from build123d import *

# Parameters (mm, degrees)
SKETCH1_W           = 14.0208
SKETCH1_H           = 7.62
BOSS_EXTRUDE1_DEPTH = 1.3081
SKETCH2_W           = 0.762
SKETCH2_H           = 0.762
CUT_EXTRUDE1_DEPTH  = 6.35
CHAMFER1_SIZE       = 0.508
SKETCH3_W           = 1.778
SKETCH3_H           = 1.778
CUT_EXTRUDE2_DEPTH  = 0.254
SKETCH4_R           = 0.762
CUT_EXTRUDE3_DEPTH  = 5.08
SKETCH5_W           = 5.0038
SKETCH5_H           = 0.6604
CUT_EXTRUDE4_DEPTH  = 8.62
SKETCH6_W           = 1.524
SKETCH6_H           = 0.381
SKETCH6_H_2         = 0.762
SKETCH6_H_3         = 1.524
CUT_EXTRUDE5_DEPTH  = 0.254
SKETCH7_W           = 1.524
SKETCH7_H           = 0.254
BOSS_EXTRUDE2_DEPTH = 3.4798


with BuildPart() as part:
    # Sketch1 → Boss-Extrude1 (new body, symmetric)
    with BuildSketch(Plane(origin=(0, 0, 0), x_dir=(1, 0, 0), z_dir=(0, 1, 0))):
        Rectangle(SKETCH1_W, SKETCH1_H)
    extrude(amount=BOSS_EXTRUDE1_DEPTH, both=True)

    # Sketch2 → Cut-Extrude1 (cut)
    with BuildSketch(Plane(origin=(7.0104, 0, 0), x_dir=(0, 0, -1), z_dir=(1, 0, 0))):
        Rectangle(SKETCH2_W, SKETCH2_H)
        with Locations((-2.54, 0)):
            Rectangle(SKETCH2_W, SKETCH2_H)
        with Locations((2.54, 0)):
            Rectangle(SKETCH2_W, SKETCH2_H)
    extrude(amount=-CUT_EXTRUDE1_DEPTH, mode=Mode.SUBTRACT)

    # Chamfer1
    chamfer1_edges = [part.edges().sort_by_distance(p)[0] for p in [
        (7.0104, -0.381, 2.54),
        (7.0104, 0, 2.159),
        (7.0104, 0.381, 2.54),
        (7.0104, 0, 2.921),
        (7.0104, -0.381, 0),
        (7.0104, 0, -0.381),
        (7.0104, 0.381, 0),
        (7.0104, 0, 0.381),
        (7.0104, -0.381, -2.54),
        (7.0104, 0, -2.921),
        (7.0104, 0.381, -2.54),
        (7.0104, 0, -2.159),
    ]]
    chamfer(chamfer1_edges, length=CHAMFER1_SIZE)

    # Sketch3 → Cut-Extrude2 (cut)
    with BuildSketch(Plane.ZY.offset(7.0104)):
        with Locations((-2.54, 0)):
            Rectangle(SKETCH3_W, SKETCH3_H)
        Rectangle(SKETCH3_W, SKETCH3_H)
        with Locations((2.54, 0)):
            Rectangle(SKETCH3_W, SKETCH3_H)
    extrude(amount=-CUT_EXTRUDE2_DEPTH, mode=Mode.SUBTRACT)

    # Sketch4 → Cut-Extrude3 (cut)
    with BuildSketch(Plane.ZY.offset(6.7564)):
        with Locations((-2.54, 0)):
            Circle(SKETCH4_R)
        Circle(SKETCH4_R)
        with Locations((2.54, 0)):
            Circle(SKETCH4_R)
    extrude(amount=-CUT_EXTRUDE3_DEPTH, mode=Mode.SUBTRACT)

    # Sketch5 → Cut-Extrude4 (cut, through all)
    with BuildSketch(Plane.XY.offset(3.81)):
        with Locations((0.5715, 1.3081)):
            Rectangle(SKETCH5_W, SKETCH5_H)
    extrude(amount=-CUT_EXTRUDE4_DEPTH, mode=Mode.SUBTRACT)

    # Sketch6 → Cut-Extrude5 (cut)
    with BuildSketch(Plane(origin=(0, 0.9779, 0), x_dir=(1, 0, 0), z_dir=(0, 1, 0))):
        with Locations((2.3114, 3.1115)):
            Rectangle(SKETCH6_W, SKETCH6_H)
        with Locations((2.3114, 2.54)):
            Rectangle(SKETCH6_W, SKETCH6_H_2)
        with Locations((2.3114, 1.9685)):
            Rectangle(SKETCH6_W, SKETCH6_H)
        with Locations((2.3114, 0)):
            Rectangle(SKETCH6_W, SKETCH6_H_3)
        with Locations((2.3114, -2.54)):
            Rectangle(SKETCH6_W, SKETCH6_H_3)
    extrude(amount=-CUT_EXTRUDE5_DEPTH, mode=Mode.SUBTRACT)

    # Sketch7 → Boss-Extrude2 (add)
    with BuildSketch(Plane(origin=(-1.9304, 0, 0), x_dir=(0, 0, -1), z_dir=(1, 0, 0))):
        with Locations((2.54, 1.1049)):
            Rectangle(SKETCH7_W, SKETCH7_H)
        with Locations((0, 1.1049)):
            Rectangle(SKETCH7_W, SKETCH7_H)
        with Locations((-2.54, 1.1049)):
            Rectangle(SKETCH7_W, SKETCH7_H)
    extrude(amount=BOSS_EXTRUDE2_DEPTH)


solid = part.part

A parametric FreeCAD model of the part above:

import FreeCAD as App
import Part
import Sketcher
Q = App.Units.Quantity


def edges_at(feature, points):
    """Names of the edges that pass closest to the given points."""
    edges = feature.Shape.Edges
    near = lambda p: min(range(len(edges)), key=lambda i: edges[i].distToShape(Part.Vertex(*p))[0])
    return sorted({f"Edge{near(p) + 1}" for p in points})

doc = App.newDocument("Part")
body = doc.addObject("PartDesign::Body", "Body")

# Sketch on XZ plane
sketch1 = doc.addObject("Sketcher::SketchObject", "Sketch")
body.addObject(sketch1)
sketch1.AttachmentSupport = (doc.XZ_Plane, [""])
sketch1.MapMode = "FlatFace"
sketch1.addGeometry([
    Part.LineSegment(App.Vector(-7, -4, 0), App.Vector(-7, 4, 0)),
    Part.LineSegment(App.Vector(-7, 4, 0), App.Vector(7, 4, 0)),
    Part.LineSegment(App.Vector(7, 4, 0), App.Vector(7, -4, 0)),
    Part.LineSegment(App.Vector(7, -4, 0), App.Vector(-7, -4, 0)),
], False)
sketch1.addConstraint([
    Sketcher.Constraint("Coincident", 0, 2, 1, 1),
    Sketcher.Constraint("Coincident", 1, 2, 2, 1),
    Sketcher.Constraint("Coincident", 2, 2, 3, 1),
    Sketcher.Constraint("Coincident", 3, 2, 0, 1),
    Sketcher.Constraint("Vertical", 0),
    Sketcher.Constraint("Horizontal", 1),
    Sketcher.Constraint("Vertical", 2),
    Sketcher.Constraint("Horizontal", 3),
    Sketcher.Constraint("Symmetric", 0, 2, 2, 2, -1, 1),
    Sketcher.Constraint("DistanceY", 0, 1, 0, 2, Q("0.3 in")),
    Sketcher.Constraint("DistanceX", 1, 1, 1, 2, Q("0.552 in")),
])
pad1 = doc.addObject("PartDesign::Pad", "Pad")
body.addObject(pad1)
pad1.Profile = sketch1
pad1.Length = Q("0.103 in")
pad1.Midplane = True

# Sketch on YZ plane
sketch2 = doc.addObject("Sketcher::SketchObject", "Sketch001")
body.addObject(sketch2)
sketch2.AttachmentSupport = (doc.YZ_Plane, [""])
sketch2.MapMode = "FlatFace"
sketch2.AttachmentOffset = App.Placement(App.Vector(0, 0, 0.276 * 25.4), App.Rotation())
sketch2.addGeometry([
    Part.LineSegment(App.Vector(0.4, 0.4, 0), App.Vector(-0.4, 0.4, 0)),  # 0
    Part.LineSegment(App.Vector(-0.4, 0.4, 0), App.Vector(-0.4, -0.4, 0)),  # 1
    Part.LineSegment(App.Vector(-0.4, -0.4, 0), App.Vector(0.4, -0.4, 0)),  # 2
    Part.LineSegment(App.Vector(0.4, -0.4, 0), App.Vector(0.4, 0.4, 0)),  # 3
    Part.LineSegment(App.Vector(0.4, 2.9, 0), App.Vector(-0.4, 2.9, 0)),  # 4
    Part.LineSegment(App.Vector(-0.4, 2.9, 0), App.Vector(-0.4, 2.2, 0)),  # 5
    Part.LineSegment(App.Vector(-0.4, 2.2, 0), App.Vector(0.4, 2.2, 0)),  # 6
    Part.LineSegment(App.Vector(0.4, 2.2, 0), App.Vector(0.4, 2.9, 0)),  # 7
    Part.LineSegment(App.Vector(0.4, -2.2, 0), App.Vector(-0.4, -2.2, 0)),  # 8
    Part.LineSegment(App.Vector(-0.4, -2.2, 0), App.Vector(-0.4, -2.9, 0)),  # 9
    Part.LineSegment(App.Vector(-0.4, -2.9, 0), App.Vector(0.4, -2.9, 0)),  # 10
    Part.LineSegment(App.Vector(0.4, -2.9, 0), App.Vector(0.4, -2.2, 0)),  # 11
], False)
sketch2.addConstraint([
    Sketcher.Constraint("Coincident", 0, 2, 1, 1),
    Sketcher.Constraint("Coincident", 1, 2, 2, 1),
    Sketcher.Constraint("Coincident", 2, 2, 3, 1),
    Sketcher.Constraint("Coincident", 3, 2, 0, 1),
    Sketcher.Constraint("Coincident", 4, 2, 5, 1),
    Sketcher.Constraint("Coincident", 5, 2, 6, 1),
    Sketcher.Constraint("Coincident", 6, 2, 7, 1),
    Sketcher.Constraint("Coincident", 7, 2, 4, 1),
    Sketcher.Constraint("Coincident", 8, 2, 9, 1),
    Sketcher.Constraint("Coincident", 9, 2, 10, 1),
    Sketcher.Constraint("Coincident", 10, 2, 11, 1),
    Sketcher.Constraint("Coincident", 11, 2, 8, 1),
    Sketcher.Constraint("Horizontal", 0),
    Sketcher.Constraint("Vertical", 1),
    Sketcher.Constraint("Horizontal", 2),
    Sketcher.Constraint("Vertical", 3),
    Sketcher.Constraint("Horizontal", 4),
    Sketcher.Constraint("Vertical", 5),
    Sketcher.Constraint("Horizontal", 6),
    Sketcher.Constraint("Vertical", 7),
    Sketcher.Constraint("Horizontal", 8),
    Sketcher.Constraint("Vertical", 9),
    Sketcher.Constraint("Horizontal", 10),
    Sketcher.Constraint("Vertical", 11),
    Sketcher.Constraint("Symmetric", 0, 2, 2, 2, -1, 1),
    Sketcher.Constraint("Symmetric", 6, 2, 8, 2, -1, 1),
    Sketcher.Constraint("Symmetric", 4, 2, 10, 2, -1, 1),
    Sketcher.Constraint("Vertical", 1, 2, 4, 2),
    Sketcher.Constraint("Vertical", 3, 2, 6, 2),
    Sketcher.Constraint("Equal", 10, 1),
    Sketcher.Constraint("Equal", 3, 5),
    Sketcher.Constraint("DistanceX", 0, 2, 0, 1, Q("0.03 in")),
    Sketcher.Constraint("DistanceY", 0, 2, 4, 2, Q("0.1 in")),
])
pocket1 = doc.addObject("PartDesign::Pocket", "Pocket")
body.addObject(pocket1)
pocket1.Profile = sketch2
pocket1.Length = Q("0.25 in")
doc.recompute()

chamfer = doc.addObject("PartDesign::Chamfer", "Chamfer")
body.addObject(chamfer)
chamfer.Base = (pocket1, edges_at(pocket1, [
    (7.01, -0.381, 2.54),
    (7.01, 0, 2.159),
    (7.01, 0.381, 2.54),
    (7.01, 0, 2.921),
    (7.01, -0.381, 0),
    (7.01, 0, -0.381),
    (7.01, 0.381, 0),
    (7.01, 0, 0.381),
    (7.01, -0.381, -2.54),
    (7.01, 0, -2.921),
    (7.01, 0.381, -2.54),
    (7.01, 0, -2.159),
]))
chamfer.Size = Q("0.02 in")

# Sketch on YZ plane
sketch3 = doc.addObject("Sketcher::SketchObject", "Sketch002")
body.addObject(sketch3)
sketch3.AttachmentSupport = (doc.YZ_Plane, [""])
sketch3.MapMode = "FlatFace"
sketch3.AttachmentOffset = App.Placement(App.Vector(0, 0, -0.276 * 25.4), App.Rotation())
sketch3.addGeometry([
    Part.LineSegment(App.Vector(0.9, -3.4, 0), App.Vector(-0.9, -3.4, 0)),  # 0
    Part.LineSegment(App.Vector(-0.9, -3.4, 0), App.Vector(-0.9, -1.7, 0)),  # 1
    Part.LineSegment(App.Vector(-0.9, -1.7, 0), App.Vector(0.9, -1.7, 0)),  # 2
    Part.LineSegment(App.Vector(0.9, -1.7, 0), App.Vector(0.9, -3.4, 0)),  # 3
    Part.LineSegment(App.Vector(0.9, -0.9, 0), App.Vector(-0.9, -0.9, 0)),  # 4
    Part.LineSegment(App.Vector(-0.9, -0.9, 0), App.Vector(-0.9, 0.9, 0)),  # 5
    Part.LineSegment(App.Vector(-0.9, 0.9, 0), App.Vector(0.9, 0.9, 0)),  # 6
    Part.LineSegment(App.Vector(0.9, 0.9, 0), App.Vector(0.9, -0.9, 0)),  # 7
    Part.LineSegment(App.Vector(0.9, 1.7, 0), App.Vector(-0.9, 1.7, 0)),  # 8
    Part.LineSegment(App.Vector(-0.9, 1.7, 0), App.Vector(-0.9, 3.4, 0)),  # 9
    Part.LineSegment(App.Vector(-0.9, 3.4, 0), App.Vector(0.9, 3.4, 0)),  # 10
    Part.LineSegment(App.Vector(0.9, 3.4, 0), App.Vector(0.9, 1.7, 0)),  # 11
], False)
sketch3.addConstraint([
    Sketcher.Constraint("Coincident", 0, 2, 1, 1),
    Sketcher.Constraint("Coincident", 1, 2, 2, 1),
    Sketcher.Constraint("Coincident", 2, 2, 3, 1),
    Sketcher.Constraint("Coincident", 3, 2, 0, 1),
    Sketcher.Constraint("Coincident", 4, 2, 5, 1),
    Sketcher.Constraint("Coincident", 5, 2, 6, 1),
    Sketcher.Constraint("Coincident", 6, 2, 7, 1),
    Sketcher.Constraint("Coincident", 7, 2, 4, 1),
    Sketcher.Constraint("Coincident", 8, 2, 9, 1),
    Sketcher.Constraint("Coincident", 9, 2, 10, 1),
    Sketcher.Constraint("Coincident", 10, 2, 11, 1),
    Sketcher.Constraint("Coincident", 11, 2, 8, 1),
    Sketcher.Constraint("Horizontal", 0),
    Sketcher.Constraint("Vertical", 1),
    Sketcher.Constraint("Horizontal", 2),
    Sketcher.Constraint("Vertical", 3),
    Sketcher.Constraint("Horizontal", 4),
    Sketcher.Constraint("Vertical", 5),
    Sketcher.Constraint("Horizontal", 6),
    Sketcher.Constraint("Vertical", 7),
    Sketcher.Constraint("Horizontal", 8),
    Sketcher.Constraint("Vertical", 9),
    Sketcher.Constraint("Horizontal", 10),
    Sketcher.Constraint("Vertical", 11),
    Sketcher.Constraint("Symmetric", 4, 2, 6, 2, -1, 1),
    Sketcher.Constraint("Symmetric", 2, 2, 8, 2, -1, 1),
    Sketcher.Constraint("Symmetric", 0, 2, 10, 2, -1, 1),
    Sketcher.Constraint("Vertical", 1, 2, 4, 2),
    Sketcher.Constraint("Vertical", 3, 2, 6, 2),
    Sketcher.Constraint("Equal", 10, 1),
    Sketcher.Constraint("Equal", 3, 5),
    Sketcher.Constraint("DistanceX", 0, 2, 0, 1, Q("0.07 in")),
    Sketcher.Constraint("DistanceY", 0, 2, 4, 2, Q("0.1 in")),
])
pocket2 = doc.addObject("PartDesign::Pocket", "Pocket001")
body.addObject(pocket2)
pocket2.Profile = sketch3
pocket2.Length = Q("0.01 in")
pocket2.Reversed = True

# Sketch on YZ plane
sketch4 = doc.addObject("Sketcher::SketchObject", "Sketch003")
body.addObject(sketch4)
sketch4.AttachmentSupport = (doc.YZ_Plane, [""])
sketch4.MapMode = "FlatFace"
sketch4.AttachmentOffset = App.Placement(App.Vector(0, 0, -0.266 * 25.4), App.Rotation())
sketch4.addGeometry([
    Part.Circle(App.Vector(0, -2.5, 0), App.Vector(0, 0, 1), 0.8),
    Part.Circle(App.Vector(0, 0, 0), App.Vector(0, 0, 1), 0.8),
    Part.Circle(App.Vector(0, 2.5, 0), App.Vector(0, 0, 1), 0.8),
], False)
sketch4.addConstraint([
    Sketcher.Constraint("Coincident", 1, 3, -1, 1),
    Sketcher.Constraint("Equal", 0, 1),
    Sketcher.Constraint("Equal", 1, 2),
    Sketcher.Constraint("Symmetric", 0, 3, 2, 3, -1, 1),
    Sketcher.Constraint("PointOnObject", 0, 3, -2),
    Sketcher.Constraint("Diameter", 0, Q("0.06 in")),
    Sketcher.Constraint("DistanceY", 0, 3, -1, 1, Q("0.1 in")),
])
pocket3 = doc.addObject("PartDesign::Pocket", "Pocket002")
body.addObject(pocket3)
pocket3.Profile = sketch4
pocket3.Length = Q("0.2 in")
pocket3.Reversed = True

# Sketch on XY plane
sketch5 = doc.addObject("Sketcher::SketchObject", "Sketch004")
body.addObject(sketch5)
sketch5.AttachmentSupport = (doc.XY_Plane, [""])
sketch5.MapMode = "FlatFace"
sketch5.AttachmentOffset = App.Placement(App.Vector(0, 0, 0.15 * 25.4), App.Rotation())
sketch5.addGeometry([
    Part.LineSegment(App.Vector(-1.9, 1.6, 0), App.Vector(-1.9, 1, 0)),
    Part.LineSegment(App.Vector(-1.9, 1, 0), App.Vector(3.1, 1, 0)),
    Part.LineSegment(App.Vector(3.1, 1, 0), App.Vector(3.1, 1.6, 0)),
    Part.LineSegment(App.Vector(3.1, 1.6, 0), App.Vector(-1.9, 1.6, 0)),
], False)
sketch5.addConstraint([
    Sketcher.Constraint("Coincident", 0, 2, 1, 1),
    Sketcher.Constraint("Coincident", 1, 2, 2, 1),
    Sketcher.Constraint("Coincident", 2, 2, 3, 1),
    Sketcher.Constraint("Coincident", 3, 2, 0, 1),
    Sketcher.Constraint("Vertical", 0),
    Sketcher.Constraint("Horizontal", 1),
    Sketcher.Constraint("Vertical", 2),
    Sketcher.Constraint("Horizontal", 3),
    Sketcher.Constraint("DistanceX", 1, 1, 1, 2, Q("0.197 in")),
    Sketcher.Constraint("DistanceY", 0, 2, 0, 1, Q("0.026 in")),
    Sketcher.Constraint("DistanceX", 0, 2, -1, 1, Q("0.076 in")),
    Sketcher.Constraint("DistanceY", -1, 1, 0, 2, Q("0.0385 in")),
])
pocket4 = doc.addObject("PartDesign::Pocket", "Pocket003")
body.addObject(pocket4)
pocket4.Profile = sketch5
pocket4.Type = "ThroughAll"

# Sketch on XZ plane
sketch6 = doc.addObject("Sketcher::SketchObject", "Sketch005")
body.addObject(sketch6)
sketch6.AttachmentSupport = (doc.XZ_Plane, [""])
sketch6.MapMode = "FlatFace"
sketch6.AttachmentOffset = App.Placement(App.Vector(0, 0, -0.0385 * 25.4), App.Rotation())
sketch6.addGeometry([
    Part.LineSegment(App.Vector(1.5, -3.3, 0), App.Vector(1.5, -1.8, 0)),  # 0
    Part.LineSegment(App.Vector(1.5, -1.8, 0), App.Vector(3.1, -1.8, 0)),  # 1
    Part.LineSegment(App.Vector(3.1, -1.8, 0), App.Vector(3.1, -3.3, 0)),  # 2
    Part.LineSegment(App.Vector(3.1, -3.3, 0), App.Vector(1.5, -3.3, 0)),  # 3
    Part.LineSegment(App.Vector(1.5, -0.8, 0), App.Vector(1.5, 0.8, 0)),  # 4
    Part.LineSegment(App.Vector(1.5, 0.8, 0), App.Vector(3.1, 0.8, 0)),  # 5
    Part.LineSegment(App.Vector(3.1, 0.8, 0), App.Vector(3.1, -0.8, 0)),  # 6
    Part.LineSegment(App.Vector(3.1, -0.8, 0), App.Vector(1.5, -0.8, 0)),  # 7
    Part.LineSegment(App.Vector(1.5, 1.8, 0), App.Vector(1.5, 3.3, 0)),  # 8
    Part.LineSegment(App.Vector(1.5, 3.3, 0), App.Vector(3.1, 3.3, 0)),  # 9
    Part.LineSegment(App.Vector(3.1, 3.3, 0), App.Vector(3.1, 1.8, 0)),  # 10
    Part.LineSegment(App.Vector(3.1, 1.8, 0), App.Vector(1.5, 1.8, 0)),  # 11
], False)
sketch6.addConstraint([
    Sketcher.Constraint("Coincident", 0, 2, 1, 1),
    Sketcher.Constraint("Coincident", 1, 2, 2, 1),
    Sketcher.Constraint("Coincident", 2, 2, 3, 1),
    Sketcher.Constraint("Coincident", 3, 2, 0, 1),
    Sketcher.Constraint("Coincident", 4, 2, 5, 1),
    Sketcher.Constraint("Coincident", 5, 2, 6, 1),
    Sketcher.Constraint("Coincident", 6, 2, 7, 1),
    Sketcher.Constraint("Coincident", 7, 2, 4, 1),
    Sketcher.Constraint("Coincident", 8, 2, 9, 1),
    Sketcher.Constraint("Coincident", 9, 2, 10, 1),
    Sketcher.Constraint("Coincident", 10, 2, 11, 1),
    Sketcher.Constraint("Coincident", 11, 2, 8, 1),
    Sketcher.Constraint("Vertical", 0),
    Sketcher.Constraint("Horizontal", 1),
    Sketcher.Constraint("Vertical", 2),
    Sketcher.Constraint("Horizontal", 3),
    Sketcher.Constraint("Vertical", 4),
    Sketcher.Constraint("Horizontal", 5),
    Sketcher.Constraint("Vertical", 6),
    Sketcher.Constraint("Horizontal", 7),
    Sketcher.Constraint("Vertical", 8),
    Sketcher.Constraint("Horizontal", 9),
    Sketcher.Constraint("Vertical", 10),
    Sketcher.Constraint("Horizontal", 11),
    Sketcher.Constraint("Symmetric", 3, 2, 8, 2, -1),
    Sketcher.Constraint("Symmetric", 1, 2, 10, 2, -1),
    Sketcher.Constraint("Vertical", 3, 2, 4, 2),
    Sketcher.Constraint("Vertical", 2, 2, 5, 2),
    Sketcher.Constraint("Equal", 11, 0),
    Sketcher.Constraint("Equal", 2, 4),
    Sketcher.Constraint("DistanceX", 1, 1, 1, 2, Q("0.06 in")),
    Sketcher.Constraint("DistanceY", 0, 2, 4, 2, Q("0.1 in")),
    Sketcher.Constraint("DistanceY", 4, 2, 8, 2, Q("0.1 in")),
    Sketcher.Constraint("DistanceX", -1, 1, 0, 2, Q("0.061 in")),
])
pocket5 = doc.addObject("PartDesign::Pocket", "Pocket004")
body.addObject(pocket5)
pocket5.Profile = sketch6
pocket5.Length = Q("0.01 in")
pocket5.Reversed = True

# Sketch on YZ plane
sketch7 = doc.addObject("Sketcher::SketchObject", "Sketch006")
body.addObject(sketch7)
sketch7.AttachmentSupport = (doc.YZ_Plane, [""])
sketch7.MapMode = "FlatFace"
sketch7.AttachmentOffset = App.Placement(App.Vector(0, 0, -0.076 * 25.4), App.Rotation())
sketch7.addGeometry([
    Part.LineSegment(App.Vector(1.23, -1.78, 0), App.Vector(0.98, -1.78, 0)),  # 0
    Part.LineSegment(App.Vector(0.98, -1.78, 0), App.Vector(0.98, -3.3, 0)),  # 1
    Part.LineSegment(App.Vector(0.98, -3.3, 0), App.Vector(1.23, -3.3, 0)),  # 2
    Part.LineSegment(App.Vector(1.23, -3.3, 0), App.Vector(1.23, -1.78, 0)),  # 3
    Part.LineSegment(App.Vector(1.23, 0.76, 0), App.Vector(0.98, 0.76, 0)),  # 4
    Part.LineSegment(App.Vector(0.98, 0.76, 0), App.Vector(0.98, -0.76, 0)),  # 5
    Part.LineSegment(App.Vector(0.98, -0.76, 0), App.Vector(1.23, -0.76, 0)),  # 6
    Part.LineSegment(App.Vector(1.23, -0.76, 0), App.Vector(1.23, 0.76, 0)),  # 7
    Part.LineSegment(App.Vector(1.23, 3.3, 0), App.Vector(0.98, 3.3, 0)),  # 8
    Part.LineSegment(App.Vector(0.98, 3.3, 0), App.Vector(0.98, 1.78, 0)),  # 9
    Part.LineSegment(App.Vector(0.98, 1.78, 0), App.Vector(1.23, 1.78, 0)),  # 10
    Part.LineSegment(App.Vector(1.23, 1.78, 0), App.Vector(1.23, 3.3, 0)),  # 11
], False)
sketch7.addConstraint([
    Sketcher.Constraint("Coincident", 0, 2, 1, 1),
    Sketcher.Constraint("Coincident", 1, 2, 2, 1),
    Sketcher.Constraint("Coincident", 2, 2, 3, 1),
    Sketcher.Constraint("Coincident", 3, 2, 0, 1),
    Sketcher.Constraint("Coincident", 4, 2, 5, 1),
    Sketcher.Constraint("Coincident", 5, 2, 6, 1),
    Sketcher.Constraint("Coincident", 6, 2, 7, 1),
    Sketcher.Constraint("Coincident", 7, 2, 4, 1),
    Sketcher.Constraint("Coincident", 8, 2, 9, 1),
    Sketcher.Constraint("Coincident", 9, 2, 10, 1),
    Sketcher.Constraint("Coincident", 10, 2, 11, 1),
    Sketcher.Constraint("Coincident", 11, 2, 8, 1),
    Sketcher.Constraint("Horizontal", 0),
    Sketcher.Constraint("Vertical", 1),
    Sketcher.Constraint("Horizontal", 2),
    Sketcher.Constraint("Vertical", 3),
    Sketcher.Constraint("Horizontal", 4),
    Sketcher.Constraint("Vertical", 5),
    Sketcher.Constraint("Horizontal", 6),
    Sketcher.Constraint("Vertical", 7),
    Sketcher.Constraint("Horizontal", 8),
    Sketcher.Constraint("Vertical", 9),
    Sketcher.Constraint("Horizontal", 10),
    Sketcher.Constraint("Vertical", 11),
    Sketcher.Constraint("Symmetric", 1, 2, 8, 2, -1),
    Sketcher.Constraint("Symmetric", 3, 2, 10, 2, -1),
    Sketcher.Constraint("Vertical", 1, 2, 4, 2),
    Sketcher.Constraint("Vertical", 3, 2, 6, 2),
    Sketcher.Constraint("Equal", 3, 5),
    Sketcher.Constraint("DistanceX", 0, 2, 0, 1, Q("0.01 in")),
    Sketcher.Constraint("DistanceY", 1, 2, 1, 1, Q("0.06 in")),
    Sketcher.Constraint("DistanceY", 0, 2, 4, 2, Q("0.1 in")),
    Sketcher.Constraint("DistanceY", 4, 2, 8, 2, Q("0.1 in")),
    Sketcher.Constraint("DistanceX", -1, 1, 0, 2, Q("0.0385 in")),
])
pad2 = doc.addObject("PartDesign::Pad", "Pad001")
body.addObject(pad2)
pad2.Profile = sketch7
pad2.Length = Q("0.137 in")

doc.recompute()
